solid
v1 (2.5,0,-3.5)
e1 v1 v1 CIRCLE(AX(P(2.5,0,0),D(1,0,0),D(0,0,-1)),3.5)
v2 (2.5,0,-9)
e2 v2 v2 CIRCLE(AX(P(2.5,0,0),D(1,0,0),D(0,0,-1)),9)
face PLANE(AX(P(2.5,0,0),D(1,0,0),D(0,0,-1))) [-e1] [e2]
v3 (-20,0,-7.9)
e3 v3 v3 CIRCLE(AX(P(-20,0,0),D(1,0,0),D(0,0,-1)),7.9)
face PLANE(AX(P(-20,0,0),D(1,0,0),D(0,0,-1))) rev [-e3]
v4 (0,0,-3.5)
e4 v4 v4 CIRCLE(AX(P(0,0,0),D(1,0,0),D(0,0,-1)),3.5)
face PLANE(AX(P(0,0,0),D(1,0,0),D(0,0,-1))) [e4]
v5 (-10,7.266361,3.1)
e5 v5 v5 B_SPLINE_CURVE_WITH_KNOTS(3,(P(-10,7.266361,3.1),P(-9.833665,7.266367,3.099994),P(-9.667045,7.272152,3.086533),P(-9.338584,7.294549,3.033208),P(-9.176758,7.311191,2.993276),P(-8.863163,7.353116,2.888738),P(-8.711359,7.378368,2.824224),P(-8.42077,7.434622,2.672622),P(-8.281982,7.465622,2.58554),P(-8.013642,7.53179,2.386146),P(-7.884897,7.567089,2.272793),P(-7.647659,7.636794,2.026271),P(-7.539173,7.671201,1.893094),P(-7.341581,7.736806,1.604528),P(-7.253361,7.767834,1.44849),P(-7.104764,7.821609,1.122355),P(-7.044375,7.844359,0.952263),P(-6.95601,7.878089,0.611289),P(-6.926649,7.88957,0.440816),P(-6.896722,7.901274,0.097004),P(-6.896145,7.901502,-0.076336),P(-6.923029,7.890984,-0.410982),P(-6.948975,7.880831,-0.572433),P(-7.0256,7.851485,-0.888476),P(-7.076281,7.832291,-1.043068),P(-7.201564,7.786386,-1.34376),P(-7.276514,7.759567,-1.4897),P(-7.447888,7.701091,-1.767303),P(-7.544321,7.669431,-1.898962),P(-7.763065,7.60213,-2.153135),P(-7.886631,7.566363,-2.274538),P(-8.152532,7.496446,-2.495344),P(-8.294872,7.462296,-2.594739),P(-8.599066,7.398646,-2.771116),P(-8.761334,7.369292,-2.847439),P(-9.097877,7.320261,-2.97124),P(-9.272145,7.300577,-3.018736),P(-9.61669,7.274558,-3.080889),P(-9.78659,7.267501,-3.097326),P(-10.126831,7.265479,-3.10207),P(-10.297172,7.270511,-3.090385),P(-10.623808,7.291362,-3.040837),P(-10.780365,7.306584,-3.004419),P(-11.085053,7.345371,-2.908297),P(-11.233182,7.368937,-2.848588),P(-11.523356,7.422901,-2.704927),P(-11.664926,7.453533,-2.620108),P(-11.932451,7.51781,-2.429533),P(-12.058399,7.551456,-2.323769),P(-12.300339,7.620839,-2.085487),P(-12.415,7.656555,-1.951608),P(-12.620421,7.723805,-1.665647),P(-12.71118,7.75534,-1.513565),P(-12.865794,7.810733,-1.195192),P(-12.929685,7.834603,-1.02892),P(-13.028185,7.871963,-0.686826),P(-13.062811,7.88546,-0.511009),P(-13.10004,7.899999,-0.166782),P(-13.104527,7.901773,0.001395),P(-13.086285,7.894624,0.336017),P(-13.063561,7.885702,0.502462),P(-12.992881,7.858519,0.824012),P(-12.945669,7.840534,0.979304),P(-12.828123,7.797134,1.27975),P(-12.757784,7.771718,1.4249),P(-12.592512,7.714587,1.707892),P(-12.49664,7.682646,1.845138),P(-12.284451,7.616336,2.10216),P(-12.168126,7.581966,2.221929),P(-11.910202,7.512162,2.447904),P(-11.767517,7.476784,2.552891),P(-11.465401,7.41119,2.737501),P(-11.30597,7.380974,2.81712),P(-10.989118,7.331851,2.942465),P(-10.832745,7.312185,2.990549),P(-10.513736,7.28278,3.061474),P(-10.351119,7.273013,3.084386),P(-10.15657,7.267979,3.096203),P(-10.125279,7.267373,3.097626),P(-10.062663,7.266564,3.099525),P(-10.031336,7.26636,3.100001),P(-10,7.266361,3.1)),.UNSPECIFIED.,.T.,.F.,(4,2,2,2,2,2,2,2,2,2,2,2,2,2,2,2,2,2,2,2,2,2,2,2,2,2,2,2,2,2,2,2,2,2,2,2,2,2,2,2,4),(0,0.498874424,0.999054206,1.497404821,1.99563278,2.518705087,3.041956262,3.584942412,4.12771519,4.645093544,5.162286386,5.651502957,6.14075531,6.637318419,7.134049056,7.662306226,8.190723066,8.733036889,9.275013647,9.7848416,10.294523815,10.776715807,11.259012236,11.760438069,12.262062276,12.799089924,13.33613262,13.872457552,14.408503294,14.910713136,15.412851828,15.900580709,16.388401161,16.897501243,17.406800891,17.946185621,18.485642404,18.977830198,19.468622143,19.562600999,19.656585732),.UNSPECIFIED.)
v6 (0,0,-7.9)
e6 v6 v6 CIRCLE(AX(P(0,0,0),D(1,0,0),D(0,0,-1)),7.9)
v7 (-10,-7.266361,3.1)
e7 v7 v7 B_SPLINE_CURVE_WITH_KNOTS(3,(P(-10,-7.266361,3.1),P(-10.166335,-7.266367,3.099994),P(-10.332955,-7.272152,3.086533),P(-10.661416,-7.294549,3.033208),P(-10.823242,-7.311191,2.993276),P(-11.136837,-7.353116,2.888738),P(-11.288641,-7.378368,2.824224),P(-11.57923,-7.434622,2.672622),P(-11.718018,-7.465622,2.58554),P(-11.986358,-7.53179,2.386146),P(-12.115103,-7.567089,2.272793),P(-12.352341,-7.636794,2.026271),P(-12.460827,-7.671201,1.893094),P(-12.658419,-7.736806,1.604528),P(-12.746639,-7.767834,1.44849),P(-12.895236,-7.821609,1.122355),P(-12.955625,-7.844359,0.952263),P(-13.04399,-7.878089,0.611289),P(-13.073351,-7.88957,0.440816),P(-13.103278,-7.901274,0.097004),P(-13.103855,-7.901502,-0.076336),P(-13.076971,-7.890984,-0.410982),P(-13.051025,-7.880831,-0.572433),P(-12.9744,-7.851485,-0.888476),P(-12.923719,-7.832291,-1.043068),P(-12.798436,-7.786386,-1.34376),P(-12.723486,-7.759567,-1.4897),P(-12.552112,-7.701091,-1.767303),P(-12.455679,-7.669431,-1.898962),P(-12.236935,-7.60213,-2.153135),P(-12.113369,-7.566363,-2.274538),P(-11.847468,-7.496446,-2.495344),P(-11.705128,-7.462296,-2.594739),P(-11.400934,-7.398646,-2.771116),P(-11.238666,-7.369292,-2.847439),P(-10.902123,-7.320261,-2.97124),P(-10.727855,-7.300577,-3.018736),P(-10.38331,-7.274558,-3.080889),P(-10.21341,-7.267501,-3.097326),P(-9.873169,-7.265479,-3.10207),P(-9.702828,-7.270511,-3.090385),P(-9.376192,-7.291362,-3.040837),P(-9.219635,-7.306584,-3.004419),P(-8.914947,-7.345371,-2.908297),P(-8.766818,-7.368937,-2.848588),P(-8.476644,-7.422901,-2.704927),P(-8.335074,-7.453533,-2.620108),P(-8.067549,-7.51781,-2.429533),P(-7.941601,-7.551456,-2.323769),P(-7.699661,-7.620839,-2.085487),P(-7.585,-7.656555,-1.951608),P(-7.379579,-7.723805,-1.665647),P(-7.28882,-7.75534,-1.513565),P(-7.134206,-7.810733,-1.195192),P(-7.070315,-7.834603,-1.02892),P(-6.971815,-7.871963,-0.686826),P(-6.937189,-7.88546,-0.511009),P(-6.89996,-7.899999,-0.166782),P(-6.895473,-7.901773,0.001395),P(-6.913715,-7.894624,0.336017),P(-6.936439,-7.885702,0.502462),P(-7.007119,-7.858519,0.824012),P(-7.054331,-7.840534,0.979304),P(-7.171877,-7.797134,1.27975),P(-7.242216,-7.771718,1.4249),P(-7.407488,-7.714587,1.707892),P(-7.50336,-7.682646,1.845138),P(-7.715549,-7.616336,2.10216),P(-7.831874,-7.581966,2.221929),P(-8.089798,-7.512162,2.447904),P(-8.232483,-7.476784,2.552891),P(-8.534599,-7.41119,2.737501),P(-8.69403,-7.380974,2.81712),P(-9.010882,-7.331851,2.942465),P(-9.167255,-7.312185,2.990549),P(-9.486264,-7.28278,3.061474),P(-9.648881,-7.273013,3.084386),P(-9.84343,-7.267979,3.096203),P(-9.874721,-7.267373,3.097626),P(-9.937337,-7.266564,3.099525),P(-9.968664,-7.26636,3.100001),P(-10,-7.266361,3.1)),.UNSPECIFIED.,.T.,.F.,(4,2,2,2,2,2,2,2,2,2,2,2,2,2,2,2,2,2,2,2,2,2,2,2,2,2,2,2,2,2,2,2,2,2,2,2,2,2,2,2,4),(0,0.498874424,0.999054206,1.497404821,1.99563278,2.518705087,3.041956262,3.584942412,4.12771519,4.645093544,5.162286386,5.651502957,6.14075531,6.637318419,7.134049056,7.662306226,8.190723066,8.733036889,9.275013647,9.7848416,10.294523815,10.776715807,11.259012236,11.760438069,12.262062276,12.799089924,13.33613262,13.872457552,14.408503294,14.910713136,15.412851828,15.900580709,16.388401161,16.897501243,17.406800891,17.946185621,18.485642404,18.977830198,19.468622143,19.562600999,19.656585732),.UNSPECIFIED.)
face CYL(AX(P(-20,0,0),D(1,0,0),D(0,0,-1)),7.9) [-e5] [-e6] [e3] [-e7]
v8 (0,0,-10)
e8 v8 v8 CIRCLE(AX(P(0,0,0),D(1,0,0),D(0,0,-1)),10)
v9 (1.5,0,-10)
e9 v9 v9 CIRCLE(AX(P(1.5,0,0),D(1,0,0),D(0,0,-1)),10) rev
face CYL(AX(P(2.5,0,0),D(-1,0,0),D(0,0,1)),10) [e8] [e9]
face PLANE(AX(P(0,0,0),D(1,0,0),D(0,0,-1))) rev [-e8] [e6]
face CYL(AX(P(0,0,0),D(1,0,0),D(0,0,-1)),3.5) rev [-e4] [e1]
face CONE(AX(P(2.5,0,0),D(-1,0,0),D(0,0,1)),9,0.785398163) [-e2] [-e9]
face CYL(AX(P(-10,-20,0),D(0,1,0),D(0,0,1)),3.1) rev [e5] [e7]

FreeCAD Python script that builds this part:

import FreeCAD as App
import Part
import Sketcher
Q = App.Units.Quantity


def edges_at(feature, points):
    """Names of the edges that pass closest to the given points."""
    edges = feature.Shape.Edges
    near = lambda p: min(range(len(edges)), key=lambda i: edges[i].distToShape(Part.Vertex(*p))[0])
    return sorted({f"Edge{near(p) + 1}" for p in points})

doc = App.newDocument("Part")
body = doc.addObject("PartDesign::Body", "Body")

# Sketch on YZ plane
sketch1 = body.newObject("Sketcher::SketchObject", "Sketch")
sketch1.AttachmentSupport = (doc.getObject("YZ_Plane"), [""])
sketch1.MapMode = "FlatFace"
sketch1.addGeometry(Part.Circle(App.Vector(0, 0, 0), App.Vector(0, 0, 1), 8), False)
sketch1.addConstraint([
    Sketcher.Constraint("Coincident", 0, 3, -1, 1),
    Sketcher.Constraint("Diameter", 0, Q("15.8 mm")),
])
pad1 = body.newObject("PartDesign::Pad", "Pad")
pad1.Profile = sketch1
pad1.Length = 20
pad1.Reversed = True

# Sketch on XZ plane
sketch2 = body.newObject("Sketcher::SketchObject", "Sketch001")
sketch2.AttachmentSupport = (doc.getObject("XZ_Plane"), [""])
sketch2.MapMode = "FlatFace"
sketch2.addGeometry(Part.Circle(App.Vector(-10, 0, 0), App.Vector(0, 0, 1), 3.1), False)
sketch2.addConstraint([
    Sketcher.Constraint("PointOnObject", 0, 3, -1),
    Sketcher.Constraint("Diameter", 0, Q("6.2 mm")),
    Sketcher.Constraint("DistanceX", 0, 3, -1, 1, Q("10 mm")),
])
pocket1 = body.newObject("PartDesign::Pocket", "Pocket")
pocket1.Profile = sketch2
pocket1.Length = 40
pocket1.Midplane = True

# Sketch on YZ plane
sketch3 = body.newObject("Sketcher::SketchObject", "Sketch002")
sketch3.AttachmentSupport = (doc.getObject("YZ_Plane"), [""])
sketch3.MapMode = "FlatFace"
sketch3.addGeometry(Part.Circle(App.Vector(0, 0, 0), App.Vector(0, 0, 1), 10), False)
sketch3.addConstraint([
    Sketcher.Constraint("Coincident", 0, 3, -1, 1),
    Sketcher.Constraint("Diameter", 0, Q("20 mm")),
])
pad2 = body.newObject("PartDesign::Pad", "Pad001")
pad2.Profile = sketch3
pad2.Length = 2.5

# Sketch on YZ plane
sketch4 = body.newObject("Sketcher::SketchObject", "Sketch003")
sketch4.AttachmentSupport = (doc.getObject("YZ_Plane"), [""])
sketch4.MapMode = "FlatFace"
sketch4.AttachmentOffset = App.Placement(App.Vector(0, 0, 2.5), App.Rotation())
sketch4.addGeometry(Part.Circle(App.Vector(0, 0, 0), App.Vector(0, 0, 1), 3.5), False)
sketch4.addConstraint([
    Sketcher.Constraint("Coincident", 0, 3, -1, 1),
    Sketcher.Constraint("Diameter", 0, Q("7 mm")),
])
pocket2 = body.newObject("PartDesign::Pocket", "Pocket001")
pocket2.Profile = sketch4
pocket2.Length = 2.5
doc.recompute()

chamfer = body.newObject("PartDesign::Chamfer", "Chamfer")
chamfer.Base = (pocket2, edges_at(pocket2, [(2.5, 0, 10)]))
chamfer.Size = 1

doc.recompute()
